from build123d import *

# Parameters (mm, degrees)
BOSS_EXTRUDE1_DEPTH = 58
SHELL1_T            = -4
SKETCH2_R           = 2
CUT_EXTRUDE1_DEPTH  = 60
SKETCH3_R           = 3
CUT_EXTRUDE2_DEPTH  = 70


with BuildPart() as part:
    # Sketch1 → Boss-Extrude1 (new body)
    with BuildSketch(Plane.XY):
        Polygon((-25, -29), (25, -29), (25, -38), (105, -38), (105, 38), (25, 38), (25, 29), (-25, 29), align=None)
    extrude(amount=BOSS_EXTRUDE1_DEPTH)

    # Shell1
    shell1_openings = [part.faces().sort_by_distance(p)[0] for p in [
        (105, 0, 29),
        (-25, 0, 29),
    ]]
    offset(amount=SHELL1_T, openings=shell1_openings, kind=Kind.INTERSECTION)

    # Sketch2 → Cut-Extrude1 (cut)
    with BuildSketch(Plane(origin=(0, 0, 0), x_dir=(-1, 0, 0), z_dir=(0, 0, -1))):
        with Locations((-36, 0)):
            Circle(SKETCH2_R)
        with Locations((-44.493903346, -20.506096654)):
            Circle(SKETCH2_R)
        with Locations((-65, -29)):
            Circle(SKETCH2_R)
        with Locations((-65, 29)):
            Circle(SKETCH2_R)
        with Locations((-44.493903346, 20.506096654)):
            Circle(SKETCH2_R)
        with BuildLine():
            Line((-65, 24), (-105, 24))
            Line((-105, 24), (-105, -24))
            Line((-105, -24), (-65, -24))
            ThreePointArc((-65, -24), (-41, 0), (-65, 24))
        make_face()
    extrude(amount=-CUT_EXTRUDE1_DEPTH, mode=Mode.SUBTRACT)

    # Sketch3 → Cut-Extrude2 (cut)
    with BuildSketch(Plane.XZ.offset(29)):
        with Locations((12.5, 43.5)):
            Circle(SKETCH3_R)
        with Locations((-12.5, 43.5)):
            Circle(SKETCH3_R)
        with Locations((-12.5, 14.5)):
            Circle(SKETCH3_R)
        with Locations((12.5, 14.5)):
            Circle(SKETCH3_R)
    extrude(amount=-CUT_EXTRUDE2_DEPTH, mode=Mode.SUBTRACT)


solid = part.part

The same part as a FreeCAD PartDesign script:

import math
import FreeCAD as App
import Part
import Sketcher

V = App.Vector


def faces_at(feature, points):
    """Names of the faces that lie closest to the given points."""
    faces = feature.Shape.Faces
    near = lambda p: min(range(len(faces)), key=lambda i: faces[i].distToShape(Part.Vertex(*p))[0])
    return sorted({f"Face{near(p) + 1}" for p in points})

doc = App.newDocument("Part")
body = doc.addObject("PartDesign::Body", "Body")

sketch1 = body.newObject("Sketcher::SketchObject", "Sketch")
sketch1.AttachmentSupport = (doc.getObject("XY_Plane"), [""])
sketch1.MapMode = "FlatFace"
sketch1.addGeometry([
    Part.LineSegment(V(-25, -29, 0), V(25, -29, 0)),
    Part.LineSegment(V(25, -29, 0), V(25, -38, 0)),
    Part.LineSegment(V(25, -38, 0), V(105, -38, 0)),
    Part.LineSegment(V(105, -38, 0), V(105, 38, 0)),
    Part.LineSegment(V(105, 38, 0), V(25, 38, 0)),
    Part.LineSegment(V(25, 38, 0), V(25, 29, 0)),
    Part.LineSegment(V(25, 29, 0), V(-25, 29, 0)),
    Part.LineSegment(V(-25, 29, 0), V(-25, -29, 0)),
], False)
sketch1.addConstraint([
    Sketcher.Constraint("Coincident", 0, 2, 1, 1),
    Sketcher.Constraint("Coincident", 1, 2, 2, 1),
    Sketcher.Constraint("Coincident", 2, 2, 3, 1),
    Sketcher.Constraint("Coincident", 3, 2, 4, 1),
    Sketcher.Constraint("Coincident", 4, 2, 5, 1),
    Sketcher.Constraint("Coincident", 5, 2, 6, 1),
    Sketcher.Constraint("Coincident", 6, 2, 7, 1),
    Sketcher.Constraint("Coincident", 7, 2, 0, 1),
    Sketcher.Constraint("Horizontal", 0),
    Sketcher.Constraint("Vertical", 1),
    Sketcher.Constraint("Horizontal", 2),
    Sketcher.Constraint("Vertical", 3),
    Sketcher.Constraint("Horizontal", 4),
    Sketcher.Constraint("Vertical", 5),
    Sketcher.Constraint("Horizontal", 6),
    Sketcher.Constraint("Vertical", 7),
    Sketcher.Constraint("Symmetric", 0, 2, 6, 2, -1, 1),
    Sketcher.Constraint("Symmetric", 1, 2, 4, 2, -1),
    Sketcher.Constraint("DistanceX", 0, 1, 0, 2, 50.0),
    Sketcher.Constraint("DistanceX", 2, 1, 2, 2, 80.0),
    Sketcher.Constraint("DistanceY", 1, 2, 1, 1, 9.0),
    Sketcher.Constraint("DistanceY", 3, 1, 3, 2, 76.0),
])
pad1 = body.newObject("PartDesign::Pad", "Pad")
pad1.Profile = sketch1
pad1.Length = 58
doc.recompute()

thickness = body.newObject("PartDesign::Thickness", "Thickness")
thickness.Base = (pad1, faces_at(pad1, [(105, 0, 29), (-25, 0, 29)]))
thickness.Value = 4
thickness.Reversed = True
thickness.Join = "Intersection"

sketch2 = body.newObject("Sketcher::SketchObject", "Sketch001")
sketch2.AttachmentSupport = (doc.getObject("XY_Plane"), [""])
sketch2.MapMode = "FlatFace"
sketch2.addGeometry([
    Part.Circle(V(36, 0, 0), V(0, 0, 1), 2),
    Part.Circle(V(44.493903, -20.506097, 0), V(0, 0, 1), 2),
    Part.Circle(V(65, -29, 0), V(0, 0, 1), 2),
    Part.Circle(V(65, 29, 0), V(0, 0, 1), 2),
    Part.Circle(V(44.493903, 20.506097, 0), V(0, 0, 1), 2),
    Part.LineSegment(V(65, 24, 0), V(105, 24, 0)),
    Part.LineSegment(V(105, 24, 0), V(105, -24, 0)),
    Part.LineSegment(V(105, -24, 0), V(65, -24, 0)),
    Part.ArcOfCircle(Part.Circle(V(65, 0, 0), V(0, 0, 1), 24), math.radians(90), math.radians(270)),
], False)
sketch2.addConstraint([
    Sketcher.Constraint("Coincident", 5, 2, 6, 1),
    Sketcher.Constraint("Coincident", 6, 2, 7, 1),
    Sketcher.Constraint("Tangent", 7, 2, 8, 2),
    Sketcher.Constraint("Tangent", 8, 1, 5, 1),
    Sketcher.Constraint("Horizontal", 5),
    Sketcher.Constraint("Vertical", 6),
    Sketcher.Constraint("Horizontal", 7),
    Sketcher.Constraint("Equal", 0, 1),
    Sketcher.Constraint("Equal", 1, 2),
    Sketcher.Constraint("Equal", 2, 3),
    Sketcher.Constraint("Equal", 3, 4),
    Sketcher.Constraint("Symmetric", 2, 3, 3, 3, -1),
    Sketcher.Constraint("Symmetric", 1, 3, 4, 3, -1),
    Sketcher.Constraint("PointOnObject", 0, 3, -1),
    Sketcher.Constraint("PointOnObject", 8, 3, -1),
    Sketcher.Constraint("Vertical", 3, 3, 8, 3),
    Sketcher.Constraint("Diameter", 0, 4.0),
    Sketcher.Constraint("Radius", 8, 24.0),
    Sketcher.Constraint("DistanceX", 5, 1, 5, 2, 40.0),
    Sketcher.Constraint("DistanceX", -1, 1, 0, 3, 36.0),
    Sketcher.Constraint("DistanceX", -1, 1, 2, 3, 65.0),
    Sketcher.Constraint("DistanceY", 2, 3, -1, 1, 29.0),
    Sketcher.Constraint("DistanceX", -1, 1, 1, 3, 44.493903),
    Sketcher.Constraint("DistanceY", 1, 3, -1, 1, 20.506097),
])
pocket1 = body.newObject("PartDesign::Pocket", "Pocket")
pocket1.Profile = sketch2
pocket1.Length = 60
pocket1.Reversed = True

sketch3 = body.newObject("Sketcher::SketchObject", "Sketch002")
sketch3.AttachmentSupport = (doc.getObject("XZ_Plane"), [""])
sketch3.MapMode = "FlatFace"
sketch3.AttachmentOffset = App.Placement(V(0, 0, 29), App.Rotation())
sketch3.addGeometry([
    Part.Circle(V(12.5, 43.5, 0), V(0, 0, 1), 3),
    Part.Circle(V(-12.5, 43.5, 0), V(0, 0, 1), 3),
    Part.Circle(V(-12.5, 14.5, 0), V(0, 0, 1), 3),
    Part.Circle(V(12.5, 14.5, 0), V(0, 0, 1), 3),
], False)
sketch3.addConstraint([
    Sketcher.Constraint("Equal", 0, 1),
    Sketcher.Constraint("Equal", 1, 2),
    Sketcher.Constraint("Equal", 2, 3),
    Sketcher.Constraint("Symmetric", 0, 3, 1, 3, -2),
    Sketcher.Constraint("Symmetric", 2, 3, 3, 3, -2),
    Sketcher.Constraint("Vertical", 1, 3, 2, 3),
    Sketcher.Constraint("Diameter", 0, 6.0),
    Sketcher.Constraint("DistanceX", 1, 3, 0, 3, 25.0),
    Sketcher.Constraint("DistanceY", 2, 3, 1, 3, 29.0),
    Sketcher.Constraint("DistanceY", -1, 1, 0, 3, 43.5),
])
pocket2 = body.newObject("PartDesign::Pocket", "Pocket001")
pocket2.Profile = sketch3
pocket2.Length = 70

doc.recompute()
